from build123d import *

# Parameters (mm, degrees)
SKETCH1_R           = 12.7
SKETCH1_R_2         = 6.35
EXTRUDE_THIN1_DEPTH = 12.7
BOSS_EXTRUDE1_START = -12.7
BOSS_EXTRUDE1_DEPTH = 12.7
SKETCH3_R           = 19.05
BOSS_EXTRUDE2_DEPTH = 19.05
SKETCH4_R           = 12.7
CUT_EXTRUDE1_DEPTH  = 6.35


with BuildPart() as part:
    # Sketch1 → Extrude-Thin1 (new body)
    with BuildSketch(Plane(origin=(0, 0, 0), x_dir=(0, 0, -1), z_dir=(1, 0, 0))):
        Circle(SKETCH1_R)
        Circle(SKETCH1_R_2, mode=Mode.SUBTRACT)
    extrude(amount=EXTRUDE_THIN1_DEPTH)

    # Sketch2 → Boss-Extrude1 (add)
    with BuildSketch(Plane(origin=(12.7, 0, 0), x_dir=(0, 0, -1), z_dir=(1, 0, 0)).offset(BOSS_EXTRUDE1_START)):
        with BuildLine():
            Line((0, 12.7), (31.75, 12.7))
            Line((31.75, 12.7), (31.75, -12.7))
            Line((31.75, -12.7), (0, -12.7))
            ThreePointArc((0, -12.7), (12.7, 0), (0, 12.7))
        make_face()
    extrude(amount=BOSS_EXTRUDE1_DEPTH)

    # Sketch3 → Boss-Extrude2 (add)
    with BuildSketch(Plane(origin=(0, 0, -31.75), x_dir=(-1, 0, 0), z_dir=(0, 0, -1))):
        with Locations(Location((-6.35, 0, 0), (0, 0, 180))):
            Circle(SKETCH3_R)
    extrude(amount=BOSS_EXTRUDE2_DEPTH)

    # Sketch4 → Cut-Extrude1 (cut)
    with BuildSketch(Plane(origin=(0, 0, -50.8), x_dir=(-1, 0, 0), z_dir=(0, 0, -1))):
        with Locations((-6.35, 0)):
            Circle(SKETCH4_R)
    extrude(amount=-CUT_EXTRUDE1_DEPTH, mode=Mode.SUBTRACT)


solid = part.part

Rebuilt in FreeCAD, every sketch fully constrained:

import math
import FreeCAD as App
import Part
import Sketcher
from FreeCAD import Vector
Q = App.Units.Quantity

doc = App.newDocument("Part")
body = doc.addObject("PartDesign::Body", "Body")

# Sketch on YZ plane
sketch1 = body.newObject("Sketcher::SketchObject", "Sketch")
sketch1.AttachmentSupport = (doc.getObject("YZ_Plane"), [""])
sketch1.MapMode = "FlatFace"
sketch1.addGeometry(Part.Circle(Vector(0, 0, 0), Vector(0, 0, 1), 13), False)
sketch1.addGeometry(Part.Circle(Vector(0, 0, 0), Vector(0, 0, 1), 6), False)
sketch1.addConstraint(Sketcher.Constraint("Coincident", 0, 3, -1, 1))
sketch1.addConstraint(Sketcher.Constraint("Coincident", 1, 3, -1, 1))
sketch1.addConstraint(Sketcher.Constraint("Diameter", 0, Q("1 in")))
sketch1.addConstraint(Sketcher.Constraint("Diameter", 1, Q("0.5 in")))
pad1 = body.newObject("PartDesign::Pad", "Pad")
pad1.Profile = sketch1
pad1.Length = Q("0.5 in")

# Sketch on YZ plane
sketch2 = body.newObject("Sketcher::SketchObject", "Sketch001")
sketch2.AttachmentSupport = (doc.getObject("YZ_Plane"), [""])
sketch2.MapMode = "FlatFace"
sketch2.addGeometry(Part.LineSegment(Vector(13, -32, 0), Vector(13, 0, 0)), False)
sketch2.addGeometry(Part.ArcOfCircle(Part.Circle(Vector(0, 0, 0), Vector(0, 0, 1), 13), math.radians(180), math.radians(360)), False)
sketch2.addGeometry(Part.LineSegment(Vector(-13, 0, 0), Vector(-13, -32, 0)), False)
sketch2.addGeometry(Part.LineSegment(Vector(-13, -32, 0), Vector(13, -32, 0)), False)
sketch2.addConstraint(Sketcher.Constraint("Tangent", 0, 2, 1, 2))
sketch2.addConstraint(Sketcher.Constraint("Tangent", 1, 1, 2, 1))
sketch2.addConstraint(Sketcher.Constraint("Coincident", 2, 2, 3, 1))
sketch2.addConstraint(Sketcher.Constraint("Coincident", 3, 2, 0, 1))
sketch2.addConstraint(Sketcher.Constraint("Vertical", 0))
sketch2.addConstraint(Sketcher.Constraint("Vertical", 2))
sketch2.addConstraint(Sketcher.Constraint("Horizontal", 3))
sketch2.addConstraint(Sketcher.Constraint("Coincident", 1, 3, -1, 1))
sketch2.addConstraint(Sketcher.Constraint("Radius", 1, Q("0.5 in")))
sketch2.addConstraint(Sketcher.Constraint("DistanceY", 0, 1, 0, 2, Q("1.25 in")))
pad2 = body.newObject("PartDesign::Pad", "Pad001")
pad2.Profile = sketch2
pad2.Length = Q("0.5 in")

# Sketch on XY plane
sketch3 = body.newObject("Sketcher::SketchObject", "Sketch002")
sketch3.AttachmentSupport = (doc.getObject("XY_Plane"), [""])
sketch3.MapMode = "FlatFace"
sketch3.AttachmentOffset = App.Placement(Vector(0, 0, -1.25 * 25.4), App.Rotation())
sketch3.addGeometry(Part.Circle(Vector(6, 0, 0), Vector(0, 0, 1), 19), False)
sketch3.addConstraint(Sketcher.Constraint("PointOnObject", 0, 3, -1))
sketch3.addConstraint(Sketcher.Constraint("Diameter", 0, Q("1.5 in")))
sketch3.addConstraint(Sketcher.Constraint("DistanceX", -1, 1, 0, 3, Q("0.25 in")))
pad3 = body.newObject("PartDesign::Pad", "Pad002")
pad3.Profile = sketch3
pad3.Length = Q("0.75 in")
pad3.Reversed = True

# Sketch on XY plane
sketch4 = body.newObject("Sketcher::SketchObject", "Sketch003")
sketch4.AttachmentSupport = (doc.getObject("XY_Plane"), [""])
sketch4.MapMode = "FlatFace"
sketch4.AttachmentOffset = App.Placement(Vector(0, 0, -2 * 25.4), App.Rotation())
sketch4.addGeometry(Part.Circle(Vector(6, 0, 0), Vector(0, 0, 1), 13), False)
sketch4.addConstraint(Sketcher.Constraint("PointOnObject", 0, 3, -1))
sketch4.addConstraint(Sketcher.Constraint("Diameter", 0, Q("1 in")))
sketch4.addConstraint(Sketcher.Constraint("DistanceX", -1, 1, 0, 3, Q("0.25 in")))
pocket1 = body.newObject("PartDesign::Pocket", "Pocket")
pocket1.Profile = sketch4
pocket1.Length = Q("0.25 in")
pocket1.Reversed = True

doc.recompute()
